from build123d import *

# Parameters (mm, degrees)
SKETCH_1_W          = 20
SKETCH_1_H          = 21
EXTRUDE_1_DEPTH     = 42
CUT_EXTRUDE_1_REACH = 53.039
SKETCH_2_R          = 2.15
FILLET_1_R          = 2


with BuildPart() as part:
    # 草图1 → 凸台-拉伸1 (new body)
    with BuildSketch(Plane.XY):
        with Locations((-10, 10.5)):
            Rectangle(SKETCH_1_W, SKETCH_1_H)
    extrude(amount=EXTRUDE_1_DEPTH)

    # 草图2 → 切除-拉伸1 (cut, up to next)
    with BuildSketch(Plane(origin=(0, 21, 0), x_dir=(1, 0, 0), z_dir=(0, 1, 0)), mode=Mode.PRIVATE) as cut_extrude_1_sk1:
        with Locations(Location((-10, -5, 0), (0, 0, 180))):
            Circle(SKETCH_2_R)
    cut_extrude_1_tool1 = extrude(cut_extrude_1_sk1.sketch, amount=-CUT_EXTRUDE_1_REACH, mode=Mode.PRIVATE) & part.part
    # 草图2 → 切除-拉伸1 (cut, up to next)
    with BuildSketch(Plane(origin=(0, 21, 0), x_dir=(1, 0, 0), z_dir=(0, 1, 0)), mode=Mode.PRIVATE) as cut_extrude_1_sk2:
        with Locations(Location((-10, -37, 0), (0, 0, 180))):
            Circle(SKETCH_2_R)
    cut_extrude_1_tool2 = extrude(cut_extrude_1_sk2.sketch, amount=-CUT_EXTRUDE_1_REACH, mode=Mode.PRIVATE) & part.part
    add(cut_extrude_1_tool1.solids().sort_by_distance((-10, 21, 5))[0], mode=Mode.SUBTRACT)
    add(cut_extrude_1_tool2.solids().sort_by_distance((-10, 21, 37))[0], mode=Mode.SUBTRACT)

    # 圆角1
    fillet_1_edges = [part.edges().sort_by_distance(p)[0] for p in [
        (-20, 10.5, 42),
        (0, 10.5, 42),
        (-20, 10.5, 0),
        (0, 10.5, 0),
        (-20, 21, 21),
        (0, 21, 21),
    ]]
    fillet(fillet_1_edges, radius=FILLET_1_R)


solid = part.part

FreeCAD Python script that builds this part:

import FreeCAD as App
import Part
import Sketcher
Q = App.Units.Quantity


def edges_at(feature, points):
    """Names of the edges that pass closest to the given points."""
    edges = feature.Shape.Edges
    near = lambda p: min(range(len(edges)), key=lambda i: edges[i].distToShape(Part.Vertex(*p))[0])
    return sorted({f"Edge{near(p) + 1}" for p in points})


def add_polygon(sketch, points):
    """Adds a closed chain of lines whose ends are joined by coincident constraints."""
    first, n = sketch.GeometryCount, len(points)
    for a, b in zip(points, points[1:] + points[:1]):
        sketch.addGeometry(Part.LineSegment(App.Vector(*a, 0), App.Vector(*b, 0)), False)
    for i in range(n):
        sketch.addConstraint(Sketcher.Constraint("Coincident", first + i, 2, first + (i + 1) % n, 1))

doc = App.newDocument("Part")
body = doc.addObject("PartDesign::Body", "Body")

# Sketch on XY plane
sketch1 = body.newObject("Sketcher::SketchObject", "Sketch")
sketch1.AttachmentSupport = (doc.getObject("XY_Plane"), [""])
sketch1.MapMode = "FlatFace"
add_polygon(sketch1, [(-20, 21), (-20, 0), (0, 0), (0, 21)])  # lines 0-3
sketch1.addConstraint(Sketcher.Constraint("Vertical", 0))
sketch1.addConstraint(Sketcher.Constraint("Horizontal", 1))
sketch1.addConstraint(Sketcher.Constraint("Vertical", 2))
sketch1.addConstraint(Sketcher.Constraint("Horizontal", 3))
sketch1.addConstraint(Sketcher.Constraint("Coincident", 1, 2, -1, 1))
sketch1.addConstraint(Sketcher.Constraint("DistanceX", 1, 1, 1, 2, Q("20 mm")))
sketch1.addConstraint(Sketcher.Constraint("DistanceY", 0, 2, 0, 1, Q("21 mm")))
pad1 = body.newObject("PartDesign::Pad", "Pad")
pad1.Profile = sketch1
pad1.Length = 42

# Sketch on XZ plane
sketch2 = body.newObject("Sketcher::SketchObject", "Sketch001")
sketch2.AttachmentSupport = (doc.getObject("XZ_Plane"), [""])
sketch2.MapMode = "FlatFace"
sketch2.AttachmentOffset = App.Placement(App.Vector(0, 0, -21), App.Rotation())
sketch2.addGeometry(Part.Circle(App.Vector(-10, 5, 0), App.Vector(0, 0, 1), 2.15), False)
sketch2.addConstraint(Sketcher.Constraint("Diameter", 0, Q("4.3 mm")))
sketch2.addConstraint(Sketcher.Constraint("DistanceX", 0, 3, -1, 1, Q("10 mm")))
sketch2.addConstraint(Sketcher.Constraint("DistanceY", -1, 1, 0, 3, Q("5 mm")))
pocket1 = body.newObject("PartDesign::Pocket", "Pocket")
pocket1.Profile = sketch2
pocket1.Type = "UpToFirst"
pocket1.Reversed = True

# Sketch on XZ plane
sketch3 = body.newObject("Sketcher::SketchObject", "Sketch002")
sketch3.AttachmentSupport = (doc.getObject("XZ_Plane"), [""])
sketch3.MapMode = "FlatFace"
sketch3.AttachmentOffset = App.Placement(App.Vector(0, 0, -21), App.Rotation())
sketch3.addGeometry(Part.Circle(App.Vector(-10, 37, 0), App.Vector(0, 0, 1), 2.15), False)
sketch3.addConstraint(Sketcher.Constraint("Diameter", 0, Q("4.3 mm")))
sketch3.addConstraint(Sketcher.Constraint("DistanceX", 0, 3, -1, 1, Q("10 mm")))
sketch3.addConstraint(Sketcher.Constraint("DistanceY", -1, 1, 0, 3, Q("37 mm")))
pocket2 = body.newObject("PartDesign::Pocket", "Pocket001")
pocket2.Profile = sketch3
pocket2.Type = "UpToFirst"
pocket2.Reversed = True
doc.recompute()

fillet = body.newObject("PartDesign::Fillet", "Fillet")
fillet.Base = (pocket2, edges_at(pocket2, [
    (-20, 10.5, 42),
    (0, 10.5, 42),
    (-20, 10.5, 0),
    (0, 10.5, 0),
    (-20, 21, 21),
    (0, 21, 21),
]))
fillet.Radius = 2

doc.recompute()
